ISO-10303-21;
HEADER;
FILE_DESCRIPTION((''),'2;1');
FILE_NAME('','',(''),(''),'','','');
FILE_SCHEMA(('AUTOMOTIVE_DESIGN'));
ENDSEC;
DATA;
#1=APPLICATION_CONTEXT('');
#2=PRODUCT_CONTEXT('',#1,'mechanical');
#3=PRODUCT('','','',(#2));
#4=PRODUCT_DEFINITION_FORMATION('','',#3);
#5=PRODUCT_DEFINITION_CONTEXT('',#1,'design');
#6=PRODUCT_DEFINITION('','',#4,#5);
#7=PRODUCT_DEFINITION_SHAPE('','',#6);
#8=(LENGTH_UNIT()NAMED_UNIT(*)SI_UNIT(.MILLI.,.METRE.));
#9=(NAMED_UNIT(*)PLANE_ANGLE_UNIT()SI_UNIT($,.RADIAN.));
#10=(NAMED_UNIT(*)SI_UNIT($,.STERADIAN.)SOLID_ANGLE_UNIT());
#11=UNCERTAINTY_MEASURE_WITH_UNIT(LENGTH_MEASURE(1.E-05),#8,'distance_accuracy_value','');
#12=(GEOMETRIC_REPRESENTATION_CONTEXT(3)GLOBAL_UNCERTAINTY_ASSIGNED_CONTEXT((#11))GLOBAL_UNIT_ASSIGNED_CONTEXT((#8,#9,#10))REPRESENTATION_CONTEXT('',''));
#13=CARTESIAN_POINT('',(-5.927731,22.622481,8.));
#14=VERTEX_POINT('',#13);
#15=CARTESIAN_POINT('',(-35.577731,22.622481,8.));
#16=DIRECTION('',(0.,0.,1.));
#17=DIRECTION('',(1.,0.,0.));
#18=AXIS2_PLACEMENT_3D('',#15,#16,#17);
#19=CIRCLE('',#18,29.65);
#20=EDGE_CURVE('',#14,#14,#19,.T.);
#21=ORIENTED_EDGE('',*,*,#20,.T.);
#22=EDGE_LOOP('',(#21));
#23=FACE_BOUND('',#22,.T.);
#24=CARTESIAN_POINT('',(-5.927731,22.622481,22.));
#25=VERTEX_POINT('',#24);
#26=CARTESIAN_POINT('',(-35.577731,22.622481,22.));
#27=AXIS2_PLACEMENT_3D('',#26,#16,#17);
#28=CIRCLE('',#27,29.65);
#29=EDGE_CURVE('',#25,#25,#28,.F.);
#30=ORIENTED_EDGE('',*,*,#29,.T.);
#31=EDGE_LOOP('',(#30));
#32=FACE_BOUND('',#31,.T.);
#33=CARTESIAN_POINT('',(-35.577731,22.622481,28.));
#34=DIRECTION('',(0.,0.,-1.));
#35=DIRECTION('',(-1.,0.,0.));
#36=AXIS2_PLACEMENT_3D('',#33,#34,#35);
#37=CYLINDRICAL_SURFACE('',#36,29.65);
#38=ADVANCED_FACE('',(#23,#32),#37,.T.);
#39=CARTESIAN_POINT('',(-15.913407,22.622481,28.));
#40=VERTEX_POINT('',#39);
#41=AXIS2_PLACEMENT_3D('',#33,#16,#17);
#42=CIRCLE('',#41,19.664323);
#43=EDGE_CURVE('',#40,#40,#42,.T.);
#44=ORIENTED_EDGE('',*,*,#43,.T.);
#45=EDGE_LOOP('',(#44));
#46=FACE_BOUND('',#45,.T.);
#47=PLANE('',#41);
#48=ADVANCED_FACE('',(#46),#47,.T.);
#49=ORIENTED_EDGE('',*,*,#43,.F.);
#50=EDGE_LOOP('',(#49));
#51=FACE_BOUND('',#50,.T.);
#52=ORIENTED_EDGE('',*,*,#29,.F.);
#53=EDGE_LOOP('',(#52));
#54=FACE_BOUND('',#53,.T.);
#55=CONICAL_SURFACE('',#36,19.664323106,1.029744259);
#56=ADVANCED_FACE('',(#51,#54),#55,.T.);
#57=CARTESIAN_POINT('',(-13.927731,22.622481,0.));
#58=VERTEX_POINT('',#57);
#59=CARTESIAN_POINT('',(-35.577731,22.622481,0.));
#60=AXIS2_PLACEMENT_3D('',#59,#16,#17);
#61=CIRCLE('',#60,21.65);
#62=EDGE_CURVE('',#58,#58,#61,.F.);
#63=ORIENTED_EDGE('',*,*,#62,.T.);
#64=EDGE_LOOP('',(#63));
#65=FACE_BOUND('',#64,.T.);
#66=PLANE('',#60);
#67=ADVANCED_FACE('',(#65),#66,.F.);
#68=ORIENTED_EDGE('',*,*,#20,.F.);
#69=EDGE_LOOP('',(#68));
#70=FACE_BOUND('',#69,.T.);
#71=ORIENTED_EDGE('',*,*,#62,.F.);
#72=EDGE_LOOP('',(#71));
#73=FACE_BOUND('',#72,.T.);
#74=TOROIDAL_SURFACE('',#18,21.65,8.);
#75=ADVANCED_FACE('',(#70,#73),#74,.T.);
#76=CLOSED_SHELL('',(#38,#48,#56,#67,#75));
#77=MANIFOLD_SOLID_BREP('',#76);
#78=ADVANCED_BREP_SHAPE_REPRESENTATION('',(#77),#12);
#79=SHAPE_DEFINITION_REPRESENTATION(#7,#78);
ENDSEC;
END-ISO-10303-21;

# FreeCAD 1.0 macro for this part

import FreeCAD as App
import Part
import Sketcher

V = App.Vector


def edges_at(feature, points):
    """Names of the edges that pass closest to the given points."""
    edges = feature.Shape.Edges
    near = lambda p: min(range(len(edges)), key=lambda i: edges[i].distToShape(Part.Vertex(*p))[0])
    return sorted({f"Edge{near(p) + 1}" for p in points})

doc = App.newDocument("Part")
body = doc.addObject("PartDesign::Body", "Body")

# Sketch on XY plane
sketch1 = body.newObject("Sketcher::SketchObject", "Sketch")
sketch1.AttachmentSupport = (doc.getObject("XY_Plane"), [""])
sketch1.MapMode = "FlatFace"
sketch1.addGeometry(Part.Circle(V(-36, 23, 0), V(0, 0, 1), 30), False)
sketch1.addConstraint([
    Sketcher.Constraint("Diameter", 0, 59.3),
    Sketcher.Constraint("DistanceX", 0, 3, -1, 1, 35.577731),
    Sketcher.Constraint("DistanceY", -1, 1, 0, 3, 22.622481),
])
pad1 = body.newObject("PartDesign::Pad", "Pad")
pad1.Profile = sketch1
pad1.Length = 28
doc.recompute()

chamfer = body.newObject("PartDesign::Chamfer", "Chamfer")
chamfer.Base = (pad1, edges_at(pad1, [(-65.228, 22.622, 28)]))
chamfer.ChamferType = "Two distances"
chamfer.Size = 6
chamfer.Size2 = 9.985677
doc.recompute()

fillet = body.newObject("PartDesign::Fillet", "Fillet")
fillet.Base = (chamfer, edges_at(chamfer, [(-65.228, 22.622, 0)]))
fillet.Radius = 8

doc.recompute()
